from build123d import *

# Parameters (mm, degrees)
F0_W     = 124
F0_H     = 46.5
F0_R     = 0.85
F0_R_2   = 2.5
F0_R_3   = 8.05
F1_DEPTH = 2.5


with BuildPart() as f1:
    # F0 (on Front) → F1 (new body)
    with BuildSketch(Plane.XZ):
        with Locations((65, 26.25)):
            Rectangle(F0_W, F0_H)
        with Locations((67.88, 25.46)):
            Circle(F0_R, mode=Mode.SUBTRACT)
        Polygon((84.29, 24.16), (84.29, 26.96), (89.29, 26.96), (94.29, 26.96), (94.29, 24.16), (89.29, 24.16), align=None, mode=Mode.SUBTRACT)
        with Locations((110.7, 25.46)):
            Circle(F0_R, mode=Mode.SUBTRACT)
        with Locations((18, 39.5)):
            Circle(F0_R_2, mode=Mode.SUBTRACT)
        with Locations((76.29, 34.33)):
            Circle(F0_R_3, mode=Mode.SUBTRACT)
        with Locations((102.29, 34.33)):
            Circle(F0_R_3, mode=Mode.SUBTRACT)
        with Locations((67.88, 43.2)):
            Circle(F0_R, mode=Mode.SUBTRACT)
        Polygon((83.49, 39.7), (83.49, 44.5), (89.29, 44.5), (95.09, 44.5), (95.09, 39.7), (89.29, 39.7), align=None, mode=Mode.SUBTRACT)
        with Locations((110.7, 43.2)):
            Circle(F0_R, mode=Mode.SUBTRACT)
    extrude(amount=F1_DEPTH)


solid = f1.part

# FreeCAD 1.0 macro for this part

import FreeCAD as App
import Part
import Sketcher

V = App.Vector

doc = App.newDocument("Part")
body = doc.addObject("PartDesign::Body", "Body")

sketch1 = body.newObject("Sketcher::SketchObject", "Sketch")
sketch1.AttachmentSupport = (doc.getObject("XZ_Plane"), [""])
sketch1.MapMode = "FlatFace"
sketch1.addGeometry([
    Part.LineSegment(V(3, 49.5, 0), V(3, 3, 0)),
    Part.LineSegment(V(3, 3, 0), V(127, 3, 0)),
    Part.LineSegment(V(127, 3, 0), V(127, 49.5, 0)),
    Part.LineSegment(V(127, 49.5, 0), V(3, 49.5, 0)),
    Part.Circle(V(67.9, 25.5, 0), V(0, 0, 1), 0.8),
    Part.LineSegment(V(94.3, 24.2, 0), V(84.3, 24.2, 0)),
    Part.LineSegment(V(84.3, 24.2, 0), V(84.3, 27, 0)),
    Part.LineSegment(V(84.3, 27, 0), V(94.3, 27, 0)),
    Part.LineSegment(V(94.3, 27, 0), V(94.3, 24.2, 0)),
    Part.Circle(V(110.7, 25.5, 0), V(0, 0, 1), 0.8),
    Part.Circle(V(76.3, 34.3, 0), V(0, 0, 1), 8.1),
    Part.Circle(V(102.3, 34.3, 0), V(0, 0, 1), 8.1),
    Part.Circle(V(18, 39.5, 0), V(0, 0, 1), 2.5),
    Part.Circle(V(67.9, 43.2, 0), V(0, 0, 1), 0.8),
    Part.LineSegment(V(95.1, 39.7, 0), V(83.5, 39.7, 0)),
    Part.LineSegment(V(83.5, 39.7, 0), V(83.5, 44.5, 0)),
    Part.LineSegment(V(83.5, 44.5, 0), V(95.1, 44.5, 0)),
    Part.LineSegment(V(95.1, 44.5, 0), V(95.1, 39.7, 0)),
    Part.Circle(V(110.7, 43.2, 0), V(0, 0, 1), 0.8),
], False)
sketch1.addConstraint([
    Sketcher.Constraint("Coincident", 0, 2, 1, 1),
    Sketcher.Constraint("Coincident", 1, 2, 2, 1),
    Sketcher.Constraint("Coincident", 2, 2, 3, 1),
    Sketcher.Constraint("Coincident", 3, 2, 0, 1),
    Sketcher.Constraint("Coincident", 5, 2, 6, 1),
    Sketcher.Constraint("Coincident", 6, 2, 7, 1),
    Sketcher.Constraint("Coincident", 7, 2, 8, 1),
    Sketcher.Constraint("Coincident", 8, 2, 5, 1),
    Sketcher.Constraint("Coincident", 14, 2, 15, 1),
    Sketcher.Constraint("Coincident", 15, 2, 16, 1),
    Sketcher.Constraint("Coincident", 16, 2, 17, 1),
    Sketcher.Constraint("Coincident", 17, 2, 14, 1),
    Sketcher.Constraint("Vertical", 0),
    Sketcher.Constraint("Horizontal", 1),
    Sketcher.Constraint("Vertical", 2),
    Sketcher.Constraint("Horizontal", 3),
    Sketcher.Constraint("Horizontal", 5),
    Sketcher.Constraint("Vertical", 6),
    Sketcher.Constraint("Horizontal", 7),
    Sketcher.Constraint("Vertical", 8),
    Sketcher.Constraint("Horizontal", 14),
    Sketcher.Constraint("Vertical", 15),
    Sketcher.Constraint("Horizontal", 16),
    Sketcher.Constraint("Vertical", 17),
    Sketcher.Constraint("Equal", 4, 9),
    Sketcher.Constraint("Equal", 10, 11),
    Sketcher.Constraint("Equal", 9, 13),
    Sketcher.Constraint("Equal", 13, 18),
    Sketcher.Constraint("Horizontal", 4, 3, 9, 3),
    Sketcher.Constraint("Horizontal", 10, 3, 11, 3),
    Sketcher.Constraint("Horizontal", 13, 3, 18, 3),
    Sketcher.Constraint("Vertical", 4, 3, 13, 3),
    Sketcher.Constraint("Vertical", 9, 3, 18, 3),
    Sketcher.Constraint("Diameter", 12, 5.0),
    Sketcher.Constraint("Diameter", 4, 1.7),
    Sketcher.Constraint("Diameter", 10, 16.1),
    Sketcher.Constraint("DistanceX", 1, 1, 1, 2, 124.0),
    Sketcher.Constraint("DistanceX", 5, 2, 5, 1, 10.0),
    Sketcher.Constraint("DistanceX", 14, 2, 14, 1, 11.6),
    Sketcher.Constraint("DistanceY", 0, 2, 0, 1, 46.5),
    Sketcher.Constraint("DistanceY", 6, 1, 6, 2, 2.8),
    Sketcher.Constraint("DistanceY", 15, 1, 15, 2, 4.8),
    Sketcher.Constraint("DistanceX", -1, 1, 12, 3, 18.0),
    Sketcher.Constraint("DistanceX", -1, 1, 0, 2, 3.0),
    Sketcher.Constraint("DistanceY", -1, 1, 0, 2, 3.0),
    Sketcher.Constraint("DistanceX", 10, 3, 11, 3, 26.0),
    Sketcher.Constraint("DistanceY", 12, 3, 3, 2, 10.0),
    Sketcher.Constraint("DistanceX", 10, 3, 5, 2, 8.0),
    Sketcher.Constraint("DistanceX", -1, 1, 9, 3, 110.7),
    Sketcher.Constraint("DistanceY", -1, 1, 13, 3, 43.2),
    Sketcher.Constraint("DistanceY", -1, 1, 14, 2, 39.7),
    Sketcher.Constraint("DistanceY", 5, 2, 4, 3, 1.3),
    Sketcher.Constraint("DistanceX", 10, 3, 14, 2, 7.2),
    Sketcher.Constraint("DistanceX", -1, 1, 4, 3, 67.88),
    Sketcher.Constraint("DistanceY", -1, 1, 4, 3, 25.46),
    Sketcher.Constraint("DistanceX", -1, 1, 10, 3, 76.29),
    Sketcher.Constraint("DistanceY", -1, 1, 10, 3, 34.33),
])
pad1 = body.newObject("PartDesign::Pad", "Pad")
pad1.Profile = sketch1
pad1.Length = 2.5

doc.recompute()
